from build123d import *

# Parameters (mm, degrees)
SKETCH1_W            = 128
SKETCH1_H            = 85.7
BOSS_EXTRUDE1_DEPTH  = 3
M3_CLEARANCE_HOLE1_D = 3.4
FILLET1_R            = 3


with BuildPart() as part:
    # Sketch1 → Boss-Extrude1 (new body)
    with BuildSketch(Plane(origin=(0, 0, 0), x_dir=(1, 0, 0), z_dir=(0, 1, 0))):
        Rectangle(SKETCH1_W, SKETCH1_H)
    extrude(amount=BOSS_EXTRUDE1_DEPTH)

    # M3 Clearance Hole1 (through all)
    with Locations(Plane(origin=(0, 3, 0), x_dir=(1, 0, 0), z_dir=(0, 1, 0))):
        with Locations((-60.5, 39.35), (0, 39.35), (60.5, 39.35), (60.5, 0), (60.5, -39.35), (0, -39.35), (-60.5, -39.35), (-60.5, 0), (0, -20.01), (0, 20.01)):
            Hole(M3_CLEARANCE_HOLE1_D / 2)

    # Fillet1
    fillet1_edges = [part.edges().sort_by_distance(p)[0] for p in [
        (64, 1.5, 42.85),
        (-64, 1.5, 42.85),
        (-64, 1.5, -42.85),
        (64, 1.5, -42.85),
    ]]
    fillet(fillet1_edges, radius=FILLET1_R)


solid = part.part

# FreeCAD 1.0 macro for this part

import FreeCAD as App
import Part
import Sketcher
from FreeCAD import Vector
Q = App.Units.Quantity


def edges_at(feature, points):
    """Names of the edges that pass closest to the given points."""
    edges = feature.Shape.Edges
    near = lambda p: min(range(len(edges)), key=lambda i: edges[i].distToShape(Part.Vertex(*p))[0])
    return sorted({f"Edge{near(p) + 1}" for p in points})

doc = App.newDocument("Part")
params = doc.addObject("Spreadsheet::Sheet", "Params")
for row, (alias, value) in enumerate([
    ("sketch1_width", "128 mm"),
    ("sketch1_height", "85.7 mm"),
    ("pad1_length", "3 mm"),
    ("sketch2_diameter", "3.4 mm"),
    ("hole_diameter", "3.4 mm"),
    ("fillet_radius", "3 mm"),
], start=1):
    params.set(f"A{row}", alias)
    params.set(f"B{row}", "=" + value)
    params.setAlias(f"B{row}", alias)

body = doc.addObject("PartDesign::Body", "Body")

sketch1 = body.newObject("Sketcher::SketchObject", "Sketch")
sketch1.AttachmentSupport = (doc.getObject("XZ_Plane"), [""])
sketch1.MapMode = "FlatFace"
sketch1.addGeometry(Part.LineSegment(Vector(-64, -43, 0), Vector(-64, 43, 0)), False)
sketch1.addGeometry(Part.LineSegment(Vector(-64, 43, 0), Vector(64, 43, 0)), False)
sketch1.addGeometry(Part.LineSegment(Vector(64, 43, 0), Vector(64, -43, 0)), False)
sketch1.addGeometry(Part.LineSegment(Vector(64, -43, 0), Vector(-64, -43, 0)), False)
sketch1.addConstraint(Sketcher.Constraint("Coincident", 0, 2, 1, 1))
sketch1.addConstraint(Sketcher.Constraint("Coincident", 1, 2, 2, 1))
sketch1.addConstraint(Sketcher.Constraint("Coincident", 2, 2, 3, 1))
sketch1.addConstraint(Sketcher.Constraint("Coincident", 3, 2, 0, 1))
sketch1.addConstraint(Sketcher.Constraint("Vertical", 0))
sketch1.addConstraint(Sketcher.Constraint("Horizontal", 1))
sketch1.addConstraint(Sketcher.Constraint("Vertical", 2))
sketch1.addConstraint(Sketcher.Constraint("Horizontal", 3))
sketch1.addConstraint(Sketcher.Constraint("Symmetric", 0, 2, 2, 2, -1, 1))
sketch1.addConstraint(Sketcher.Constraint("DistanceX", 1, 1, 1, 2, Q("128 mm")))
sketch1.addConstraint(Sketcher.Constraint("DistanceY", 0, 1, 0, 2, Q("85.7 mm")))
sketch1.setExpression("Constraints[9]", "Params.sketch1_width")
sketch1.setExpression("Constraints[10]", "Params.sketch1_height")
pad1 = body.newObject("PartDesign::Pad", "Pad")
pad1.Profile = sketch1
pad1.setExpression("Length", "Params.pad1_length")
pad1.Reversed = True

sketch2 = body.newObject("Sketcher::SketchObject", "Sketch001")
sketch2.AttachmentSupport = (doc.getObject("XZ_Plane"), [""])
sketch2.MapMode = "FlatFace"
sketch2.AttachmentOffset = App.Placement(Vector(0, 0, -3), App.Rotation())
sketch2.addGeometry(Part.Circle(Vector(-60.5, -39.4, 0), Vector(0, 0, 1), 1.7), False)
sketch2.addGeometry(Part.Circle(Vector(0, -39.4, 0), Vector(0, 0, 1), 1.7), False)
sketch2.addGeometry(Part.Circle(Vector(60.5, -39.4, 0), Vector(0, 0, 1), 1.7), False)
sketch2.addGeometry(Part.Circle(Vector(60.5, 0, 0), Vector(0, 0, 1), 1.7), False)
sketch2.addGeometry(Part.Circle(Vector(60.5, 39.4, 0), Vector(0, 0, 1), 1.7), False)
sketch2.addGeometry(Part.Circle(Vector(0, 39.4, 0), Vector(0, 0, 1), 1.7), False)
sketch2.addGeometry(Part.Circle(Vector(-60.5, 39.4, 0), Vector(0, 0, 1), 1.7), False)
sketch2.addGeometry(Part.Circle(Vector(-60.5, 0, 0), Vector(0, 0, 1), 1.7), False)
sketch2.addGeometry(Part.Circle(Vector(0, 20, 0), Vector(0, 0, 1), 1.7), False)
sketch2.addGeometry(Part.Circle(Vector(0, -20, 0), Vector(0, 0, 1), 1.7), False)
sketch2.addConstraint(Sketcher.Constraint("Equal", 0, 1))
sketch2.addConstraint(Sketcher.Constraint("Equal", 1, 2))
sketch2.addConstraint(Sketcher.Constraint("Equal", 2, 3))
sketch2.addConstraint(Sketcher.Constraint("Equal", 3, 4))
sketch2.addConstraint(Sketcher.Constraint("Equal", 4, 5))
sketch2.addConstraint(Sketcher.Constraint("Equal", 5, 6))
sketch2.addConstraint(Sketcher.Constraint("Equal", 6, 7))
sketch2.addConstraint(Sketcher.Constraint("Equal", 7, 8))
sketch2.addConstraint(Sketcher.Constraint("Equal", 8, 9))
sketch2.addConstraint(Sketcher.Constraint("Symmetric", 0, 3, 4, 3, -1, 1))
sketch2.addConstraint(Sketcher.Constraint("Symmetric", 1, 3, 5, 3, -1, 1))
sketch2.addConstraint(Sketcher.Constraint("Symmetric", 2, 3, 6, 3, -1, 1))
sketch2.addConstraint(Sketcher.Constraint("Symmetric", 3, 3, 7, 3, -1, 1))
sketch2.addConstraint(Sketcher.Constraint("Symmetric", 8, 3, 9, 3, -1, 1))
sketch2.addConstraint(Sketcher.Constraint("Symmetric", 0, 3, 2, 3, -2))
sketch2.addConstraint(Sketcher.Constraint("PointOnObject", 1, 3, -2))
sketch2.addConstraint(Sketcher.Constraint("PointOnObject", 3, 3, -1))
sketch2.addConstraint(Sketcher.Constraint("PointOnObject", 8, 3, -2))
sketch2.addConstraint(Sketcher.Constraint("Horizontal", 0, 3, 1, 3))
sketch2.addConstraint(Sketcher.Constraint("Vertical", 2, 3, 3, 3))
sketch2.addConstraint(Sketcher.Constraint("Diameter", 0, Q("3.4 mm")))
sketch2.addConstraint(Sketcher.Constraint("DistanceX", 0, 3, 2, 3, Q("121 mm")))
sketch2.addConstraint(Sketcher.Constraint("DistanceY", 2, 3, 4, 3, Q("78.7 mm")))
sketch2.addConstraint(Sketcher.Constraint("DistanceY", -1, 1, 8, 3, Q("20.01 mm")))
sketch2.setExpression("Constraints[20]", "Params.sketch2_diameter")
doc.recompute()
hole = body.newObject("PartDesign::Hole", "Hole")
hole.Profile = sketch2
hole.ThreadType = "None"
hole.setExpression("Diameter", "Params.hole_diameter")
hole.DepthType = "ThroughAll"
hole.Reversed = True
doc.recompute()

fillet = body.newObject("PartDesign::Fillet", "Fillet")
fillet.Base = (hole, edges_at(hole, [
    (64, 1.5, 42.85),
    (-64, 1.5, 42.85),
    (-64, 1.5, -42.85),
    (64, 1.5, -42.85),
]))
fillet.setExpression("Radius", "Params.fillet_radius")

doc.recompute()
